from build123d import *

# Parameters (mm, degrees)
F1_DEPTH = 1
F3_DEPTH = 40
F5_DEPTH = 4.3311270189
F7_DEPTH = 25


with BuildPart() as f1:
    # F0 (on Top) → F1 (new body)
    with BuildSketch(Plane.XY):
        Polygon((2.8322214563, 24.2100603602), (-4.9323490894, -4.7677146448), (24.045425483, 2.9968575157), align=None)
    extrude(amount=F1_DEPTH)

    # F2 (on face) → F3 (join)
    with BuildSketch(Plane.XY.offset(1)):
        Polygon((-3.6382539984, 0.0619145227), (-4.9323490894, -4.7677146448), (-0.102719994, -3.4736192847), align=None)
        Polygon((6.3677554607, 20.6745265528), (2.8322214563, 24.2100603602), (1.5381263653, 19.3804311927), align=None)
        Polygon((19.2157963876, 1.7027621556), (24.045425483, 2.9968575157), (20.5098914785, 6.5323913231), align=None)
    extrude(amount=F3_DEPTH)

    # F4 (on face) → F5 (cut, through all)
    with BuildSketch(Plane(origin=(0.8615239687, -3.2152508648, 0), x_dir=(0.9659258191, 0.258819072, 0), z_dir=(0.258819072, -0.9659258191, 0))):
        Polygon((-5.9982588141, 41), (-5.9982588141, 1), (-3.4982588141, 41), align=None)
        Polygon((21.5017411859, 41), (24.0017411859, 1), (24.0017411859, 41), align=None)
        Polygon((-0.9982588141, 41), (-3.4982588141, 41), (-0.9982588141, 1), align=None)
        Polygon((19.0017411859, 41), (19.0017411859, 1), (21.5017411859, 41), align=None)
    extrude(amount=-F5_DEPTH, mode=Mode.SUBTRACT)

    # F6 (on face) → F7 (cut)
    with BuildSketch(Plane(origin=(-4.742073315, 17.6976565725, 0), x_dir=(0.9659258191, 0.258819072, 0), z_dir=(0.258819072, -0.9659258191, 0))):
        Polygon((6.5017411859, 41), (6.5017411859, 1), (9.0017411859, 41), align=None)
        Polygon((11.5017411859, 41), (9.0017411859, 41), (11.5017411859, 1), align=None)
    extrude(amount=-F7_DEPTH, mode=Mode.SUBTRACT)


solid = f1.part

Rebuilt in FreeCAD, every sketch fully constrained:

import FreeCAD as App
import Part
import Sketcher

V = App.Vector
Q = App.Units.Quantity

doc = App.newDocument("Part")
params = doc.addObject("Spreadsheet::Sheet", "Params")
for row, (alias, value) in enumerate([
    ("sketch1_length", "30 mm"),
    ("pad1_length", "1 mm"),
    ("sketch2_length", "5 mm"),
    ("pad2_length", "40 mm"),
    ("sketch3_height", "40 mm"),
    ("sketch3_width", "2.5 mm"),
    ("sketch4_height", "40 mm"),
    ("sketch4_width", "2.5 mm"),
    ("pocket2_length", "25 mm"),
], start=1):
    params.set(f"A{row}", alias)
    params.set(f"B{row}", "=" + value)
    params.setAlias(f"B{row}", alias)

body = doc.addObject("PartDesign::Body", "Body")

sketch1 = doc.addObject("Sketcher::SketchObject", "Sketch")
body.addObject(sketch1)
sketch1.AttachmentSupport = (doc.XY_Plane, [""])
sketch1.MapMode = "FlatFace"
sketch1.addGeometry(Part.LineSegment(V(2.832221, 24.21006, 0), V(-4.932349, -4.767715, 0)), False)
sketch1.addGeometry(Part.LineSegment(V(-4.932349, -4.767715, 0), V(24.045425, 2.996858, 0)), False)
sketch1.addGeometry(Part.LineSegment(V(24.045425, 2.996858, 0), V(2.832221, 24.21006, 0)), False)
sketch1.addConstraint(Sketcher.Constraint("Coincident", 0, 2, 1, 1))
sketch1.addConstraint(Sketcher.Constraint("Coincident", 1, 2, 2, 1))
sketch1.addConstraint(Sketcher.Constraint("Coincident", 2, 2, 0, 1))
sketch1.addConstraint(Sketcher.Constraint("Equal", 0, 1))
sketch1.addConstraint(Sketcher.Constraint("Equal", 1, 2))
sketch1.addConstraint(Sketcher.Constraint("Angle", 0, Q("-104.999998 deg")))
sketch1.addConstraint(Sketcher.Constraint("Distance", 0, Q("30 mm")))
sketch1.addConstraint(Sketcher.Constraint("DistanceX", 0, 2, -1, 1, Q("4.932349 mm")))
sketch1.addConstraint(Sketcher.Constraint("DistanceY", -1, 1, 2, 2, Q("24.21006 mm")))
sketch1.setExpression("Constraints[6]", "Params.sketch1_length")
pad1 = doc.addObject("PartDesign::Pad", "Pad")
body.addObject(pad1)
pad1.Profile = sketch1
pad1.setExpression("Length", "Params.pad1_length")

sketch2 = doc.addObject("Sketcher::SketchObject", "Sketch001")
body.addObject(sketch2)
sketch2.AttachmentSupport = (doc.XY_Plane, [""])
sketch2.MapMode = "FlatFace"
sketch2.AttachmentOffset = App.Placement(V(0, 0, 1), App.Rotation())
sketch2.addGeometry(Part.LineSegment(V(-3.638254, 0.061915, 0), V(-4.932349, -4.767715, 0)), False)
sketch2.addGeometry(Part.LineSegment(V(-4.932349, -4.767715, 0), V(-0.10272, -3.473619, 0)), False)
sketch2.addGeometry(Part.LineSegment(V(-0.10272, -3.473619, 0), V(-3.638254, 0.061915, 0)), False)
sketch2.addGeometry(Part.LineSegment(V(6.367755, 20.674527, 0), V(2.832221, 24.21006, 0)), False)
sketch2.addGeometry(Part.LineSegment(V(2.832221, 24.21006, 0), V(1.538126, 19.380431, 0)), False)
sketch2.addGeometry(Part.LineSegment(V(1.538126, 19.380431, 0), V(6.367755, 20.674527, 0)), False)
sketch2.addGeometry(Part.LineSegment(V(19.215796, 1.702762, 0), V(24.045425, 2.996858, 0)), False)
sketch2.addGeometry(Part.LineSegment(V(24.045425, 2.996858, 0), V(20.509891, 6.532391, 0)), False)
sketch2.addGeometry(Part.LineSegment(V(20.509891, 6.532391, 0), V(19.215796, 1.702762, 0)), False)
sketch2.addConstraint(Sketcher.Constraint("Coincident", 0, 2, 1, 1))
sketch2.addConstraint(Sketcher.Constraint("Coincident", 1, 2, 2, 1))
sketch2.addConstraint(Sketcher.Constraint("Coincident", 2, 2, 0, 1))
sketch2.addConstraint(Sketcher.Constraint("Coincident", 3, 2, 4, 1))
sketch2.addConstraint(Sketcher.Constraint("Coincident", 4, 2, 5, 1))
sketch2.addConstraint(Sketcher.Constraint("Coincident", 5, 2, 3, 1))
sketch2.addConstraint(Sketcher.Constraint("Coincident", 6, 2, 7, 1))
sketch2.addConstraint(Sketcher.Constraint("Coincident", 7, 2, 8, 1))
sketch2.addConstraint(Sketcher.Constraint("Coincident", 8, 2, 6, 1))
sketch2.addConstraint(Sketcher.Constraint("Parallel", 2, 3))
sketch2.addConstraint(Sketcher.Constraint("Parallel", 0, 4))
sketch2.addConstraint(Sketcher.Constraint("Parallel", 1, 5))
sketch2.addConstraint(Sketcher.Constraint("Parallel", 5, 6))
sketch2.addConstraint(Sketcher.Constraint("Parallel", 3, 7))
sketch2.addConstraint(Sketcher.Constraint("Parallel", 4, 8))
sketch2.addConstraint(Sketcher.Constraint("Equal", 0, 1))
sketch2.addConstraint(Sketcher.Constraint("Equal", 1, 2))
sketch2.addConstraint(Sketcher.Constraint("Equal", 2, 3))
sketch2.addConstraint(Sketcher.Constraint("Equal", 5, 6))
sketch2.addConstraint(Sketcher.Constraint("Angle", 0, Q("-104.999998 deg")))
sketch2.addConstraint(Sketcher.Constraint("Distance", 0, Q("5 mm")))
sketch2.addConstraint(Sketcher.Constraint("DistanceX", 4, 2, 6, 2, Q("22.507299 mm")))
sketch2.addConstraint(Sketcher.Constraint("DistanceX", 0, 2, -1, 1, Q("4.932349 mm")))
sketch2.addConstraint(Sketcher.Constraint("DistanceY", 1, 2, -1, 1, Q("3.473619 mm")))
sketch2.addConstraint(Sketcher.Constraint("DistanceX", -1, 1, 3, 2, Q("2.832221 mm")))
sketch2.addConstraint(Sketcher.Constraint("DistanceY", -1, 1, 3, 2, Q("24.21006 mm")))
sketch2.addConstraint(Sketcher.Constraint("DistanceY", -1, 1, 7, 2, Q("6.532391 mm")))
sketch2.setExpression("Constraints[20]", "Params.sketch2_length")
pad2 = doc.addObject("PartDesign::Pad", "Pad001")
body.addObject(pad2)
pad2.Profile = sketch2
pad2.setExpression("Length", "Params.pad2_length")

sketch3 = doc.addObject("Sketcher::SketchObject", "Sketch002")
body.addObject(sketch3)
sketch3.Placement = App.Placement(V(0.861524, -3.215251, 0), App.Rotation(V(0.965925819, 0.258819072, 0), V(0, 0, 1), V(0.258819072, -0.965925819, 0), "ZXY"))
sketch3.addGeometry(Part.LineSegment(V(-5.998259, 41, 0), V(-5.998259, 1, 0)), False)
sketch3.addGeometry(Part.LineSegment(V(-5.998259, 1, 0), V(-3.498259, 41, 0)), False)
sketch3.addGeometry(Part.LineSegment(V(-3.498259, 41, 0), V(-5.998259, 41, 0)), False)
sketch3.addGeometry(Part.LineSegment(V(21.501741, 41, 0), V(24.001741, 1, 0)), False)
sketch3.addGeometry(Part.LineSegment(V(24.001741, 1, 0), V(24.001741, 41, 0)), False)
sketch3.addGeometry(Part.LineSegment(V(24.001741, 41, 0), V(21.501741, 41, 0)), False)
sketch3.addGeometry(Part.LineSegment(V(-0.998259, 41, 0), V(-3.498259, 41, 0)), False)
sketch3.addGeometry(Part.LineSegment(V(-3.498259, 41, 0), V(-0.998259, 1, 0)), False)
sketch3.addGeometry(Part.LineSegment(V(-0.998259, 1, 0), V(-0.998259, 41, 0)), False)
sketch3.addGeometry(Part.LineSegment(V(19.001741, 41, 0), V(19.001741, 1, 0)), False)
sketch3.addGeometry(Part.LineSegment(V(19.001741, 1, 0), V(21.501741, 41, 0)), False)
sketch3.addGeometry(Part.LineSegment(V(21.501741, 41, 0), V(19.001741, 41, 0)), False)
sketch3.addConstraint(Sketcher.Constraint("Coincident", 0, 2, 1, 1))
sketch3.addConstraint(Sketcher.Constraint("Coincident", 1, 2, 2, 1))
sketch3.addConstraint(Sketcher.Constraint("Coincident", 2, 2, 0, 1))
sketch3.addConstraint(Sketcher.Constraint("Coincident", 3, 2, 4, 1))
sketch3.addConstraint(Sketcher.Constraint("Coincident", 4, 2, 5, 1))
sketch3.addConstraint(Sketcher.Constraint("Coincident", 5, 2, 3, 1))
sketch3.addConstraint(Sketcher.Constraint("Coincident", 6, 2, 7, 1))
sketch3.addConstraint(Sketcher.Constraint("Coincident", 7, 2, 8, 1))
sketch3.addConstraint(Sketcher.Constraint("Coincident", 8, 2, 6, 1))
sketch3.addConstraint(Sketcher.Constraint("Coincident", 9, 2, 10, 1))
sketch3.addConstraint(Sketcher.Constraint("Coincident", 10, 2, 11, 1))
sketch3.addConstraint(Sketcher.Constraint("Coincident", 11, 2, 9, 1))
sketch3.addConstraint(Sketcher.Constraint("Vertical", 0))
sketch3.addConstraint(Sketcher.Constraint("Horizontal", 2))
sketch3.addConstraint(Sketcher.Constraint("Vertical", 4))
sketch3.addConstraint(Sketcher.Constraint("Horizontal", 5))
sketch3.addConstraint(Sketcher.Constraint("Horizontal", 6))
sketch3.addConstraint(Sketcher.Constraint("Vertical", 8))
sketch3.addConstraint(Sketcher.Constraint("Vertical", 9))
sketch3.addConstraint(Sketcher.Constraint("Horizontal", 11))
sketch3.addConstraint(Sketcher.Constraint("Coincident", 6, 2, 1, 2))
sketch3.addConstraint(Sketcher.Constraint("Coincident", 10, 2, 5, 2))
sketch3.addConstraint(Sketcher.Constraint("Parallel", 3, 7))
sketch3.addConstraint(Sketcher.Constraint("Parallel", 1, 10))
sketch3.addConstraint(Sketcher.Constraint("Horizontal", 0, 2, 3, 2))
sketch3.addConstraint(Sketcher.Constraint("Horizontal", 2, 2, 4, 2))
sketch3.addConstraint(Sketcher.Constraint("Horizontal", 3, 2, 7, 2))
sketch3.addConstraint(Sketcher.Constraint("Horizontal", 7, 2, 9, 2))
sketch3.addConstraint(Sketcher.Constraint("Equal", 2, 5))
sketch3.addConstraint(Sketcher.Constraint("DistanceY", 0, 2, 0, 1, Q("40 mm")))
sketch3.addConstraint(Sketcher.Constraint("DistanceX", 2, 2, 2, 1, Q("2.5 mm")))
sketch3.addConstraint(Sketcher.Constraint("DistanceY", -1, 1, 0, 2, Q("1 mm")))
sketch3.addConstraint(Sketcher.Constraint("DistanceX", 0, 2, 3, 2, Q("30 mm")))
sketch3.addConstraint(Sketcher.Constraint("DistanceX", 0, 2, -1, 1, Q("5.998259 mm")))
sketch3.setExpression("Constraints[29]", "Params.sketch3_height")
sketch3.setExpression("Constraints[30]", "Params.sketch3_width")
pocket1 = doc.addObject("PartDesign::Pocket", "Pocket")
body.addObject(pocket1)
pocket1.Profile = sketch3
pocket1.Type = "ThroughAll"

sketch4 = doc.addObject("Sketcher::SketchObject", "Sketch003")
body.addObject(sketch4)
sketch4.Placement = App.Placement(V(-4.742073, 17.697657, 0), App.Rotation(V(0.965925819, 0.258819072, 0), V(0, 0, 1), V(0.258819072, -0.965925819, 0), "ZXY"))
sketch4.addGeometry(Part.LineSegment(V(6.501741, 41, 0), V(6.501741, 1, 0)), False)
sketch4.addGeometry(Part.LineSegment(V(6.501741, 1, 0), V(9.001741, 41, 0)), False)
sketch4.addGeometry(Part.LineSegment(V(9.001741, 41, 0), V(6.501741, 41, 0)), False)
sketch4.addGeometry(Part.LineSegment(V(11.501741, 41, 0), V(9.001741, 41, 0)), False)
sketch4.addGeometry(Part.LineSegment(V(9.001741, 41, 0), V(11.501741, 1, 0)), False)
sketch4.addGeometry(Part.LineSegment(V(11.501741, 1, 0), V(11.501741, 41, 0)), False)
sketch4.addConstraint(Sketcher.Constraint("Coincident", 0, 2, 1, 1))
sketch4.addConstraint(Sketcher.Constraint("Coincident", 1, 2, 2, 1))
sketch4.addConstraint(Sketcher.Constraint("Coincident", 2, 2, 0, 1))
sketch4.addConstraint(Sketcher.Constraint("Coincident", 3, 2, 4, 1))
sketch4.addConstraint(Sketcher.Constraint("Coincident", 4, 2, 5, 1))
sketch4.addConstraint(Sketcher.Constraint("Coincident", 5, 2, 3, 1))
sketch4.addConstraint(Sketcher.Constraint("Vertical", 0))
sketch4.addConstraint(Sketcher.Constraint("Horizontal", 2))
sketch4.addConstraint(Sketcher.Constraint("Horizontal", 3))
sketch4.addConstraint(Sketcher.Constraint("Vertical", 5))
sketch4.addConstraint(Sketcher.Constraint("Coincident", 3, 2, 1, 2))
sketch4.addConstraint(Sketcher.Constraint("Horizontal", 0, 2, 4, 2))
sketch4.addConstraint(Sketcher.Constraint("Equal", 2, 3))
sketch4.addConstraint(Sketcher.Constraint("DistanceY", 0, 2, 0, 1, Q("40 mm")))
sketch4.addConstraint(Sketcher.Constraint("DistanceX", 2, 2, 2, 1, Q("2.5 mm")))
sketch4.addConstraint(Sketcher.Constraint("DistanceY", -1, 1, 0, 2, Q("1 mm")))
sketch4.addConstraint(Sketcher.Constraint("DistanceX", -1, 1, 0, 2, Q("6.501741 mm")))
sketch4.setExpression("Constraints[13]", "Params.sketch4_height")
sketch4.setExpression("Constraints[14]", "Params.sketch4_width")
pocket2 = doc.addObject("PartDesign::Pocket", "Pocket001")
body.addObject(pocket2)
pocket2.Profile = sketch4
pocket2.setExpression("Length", "Params.pocket2_length")

doc.recompute()
